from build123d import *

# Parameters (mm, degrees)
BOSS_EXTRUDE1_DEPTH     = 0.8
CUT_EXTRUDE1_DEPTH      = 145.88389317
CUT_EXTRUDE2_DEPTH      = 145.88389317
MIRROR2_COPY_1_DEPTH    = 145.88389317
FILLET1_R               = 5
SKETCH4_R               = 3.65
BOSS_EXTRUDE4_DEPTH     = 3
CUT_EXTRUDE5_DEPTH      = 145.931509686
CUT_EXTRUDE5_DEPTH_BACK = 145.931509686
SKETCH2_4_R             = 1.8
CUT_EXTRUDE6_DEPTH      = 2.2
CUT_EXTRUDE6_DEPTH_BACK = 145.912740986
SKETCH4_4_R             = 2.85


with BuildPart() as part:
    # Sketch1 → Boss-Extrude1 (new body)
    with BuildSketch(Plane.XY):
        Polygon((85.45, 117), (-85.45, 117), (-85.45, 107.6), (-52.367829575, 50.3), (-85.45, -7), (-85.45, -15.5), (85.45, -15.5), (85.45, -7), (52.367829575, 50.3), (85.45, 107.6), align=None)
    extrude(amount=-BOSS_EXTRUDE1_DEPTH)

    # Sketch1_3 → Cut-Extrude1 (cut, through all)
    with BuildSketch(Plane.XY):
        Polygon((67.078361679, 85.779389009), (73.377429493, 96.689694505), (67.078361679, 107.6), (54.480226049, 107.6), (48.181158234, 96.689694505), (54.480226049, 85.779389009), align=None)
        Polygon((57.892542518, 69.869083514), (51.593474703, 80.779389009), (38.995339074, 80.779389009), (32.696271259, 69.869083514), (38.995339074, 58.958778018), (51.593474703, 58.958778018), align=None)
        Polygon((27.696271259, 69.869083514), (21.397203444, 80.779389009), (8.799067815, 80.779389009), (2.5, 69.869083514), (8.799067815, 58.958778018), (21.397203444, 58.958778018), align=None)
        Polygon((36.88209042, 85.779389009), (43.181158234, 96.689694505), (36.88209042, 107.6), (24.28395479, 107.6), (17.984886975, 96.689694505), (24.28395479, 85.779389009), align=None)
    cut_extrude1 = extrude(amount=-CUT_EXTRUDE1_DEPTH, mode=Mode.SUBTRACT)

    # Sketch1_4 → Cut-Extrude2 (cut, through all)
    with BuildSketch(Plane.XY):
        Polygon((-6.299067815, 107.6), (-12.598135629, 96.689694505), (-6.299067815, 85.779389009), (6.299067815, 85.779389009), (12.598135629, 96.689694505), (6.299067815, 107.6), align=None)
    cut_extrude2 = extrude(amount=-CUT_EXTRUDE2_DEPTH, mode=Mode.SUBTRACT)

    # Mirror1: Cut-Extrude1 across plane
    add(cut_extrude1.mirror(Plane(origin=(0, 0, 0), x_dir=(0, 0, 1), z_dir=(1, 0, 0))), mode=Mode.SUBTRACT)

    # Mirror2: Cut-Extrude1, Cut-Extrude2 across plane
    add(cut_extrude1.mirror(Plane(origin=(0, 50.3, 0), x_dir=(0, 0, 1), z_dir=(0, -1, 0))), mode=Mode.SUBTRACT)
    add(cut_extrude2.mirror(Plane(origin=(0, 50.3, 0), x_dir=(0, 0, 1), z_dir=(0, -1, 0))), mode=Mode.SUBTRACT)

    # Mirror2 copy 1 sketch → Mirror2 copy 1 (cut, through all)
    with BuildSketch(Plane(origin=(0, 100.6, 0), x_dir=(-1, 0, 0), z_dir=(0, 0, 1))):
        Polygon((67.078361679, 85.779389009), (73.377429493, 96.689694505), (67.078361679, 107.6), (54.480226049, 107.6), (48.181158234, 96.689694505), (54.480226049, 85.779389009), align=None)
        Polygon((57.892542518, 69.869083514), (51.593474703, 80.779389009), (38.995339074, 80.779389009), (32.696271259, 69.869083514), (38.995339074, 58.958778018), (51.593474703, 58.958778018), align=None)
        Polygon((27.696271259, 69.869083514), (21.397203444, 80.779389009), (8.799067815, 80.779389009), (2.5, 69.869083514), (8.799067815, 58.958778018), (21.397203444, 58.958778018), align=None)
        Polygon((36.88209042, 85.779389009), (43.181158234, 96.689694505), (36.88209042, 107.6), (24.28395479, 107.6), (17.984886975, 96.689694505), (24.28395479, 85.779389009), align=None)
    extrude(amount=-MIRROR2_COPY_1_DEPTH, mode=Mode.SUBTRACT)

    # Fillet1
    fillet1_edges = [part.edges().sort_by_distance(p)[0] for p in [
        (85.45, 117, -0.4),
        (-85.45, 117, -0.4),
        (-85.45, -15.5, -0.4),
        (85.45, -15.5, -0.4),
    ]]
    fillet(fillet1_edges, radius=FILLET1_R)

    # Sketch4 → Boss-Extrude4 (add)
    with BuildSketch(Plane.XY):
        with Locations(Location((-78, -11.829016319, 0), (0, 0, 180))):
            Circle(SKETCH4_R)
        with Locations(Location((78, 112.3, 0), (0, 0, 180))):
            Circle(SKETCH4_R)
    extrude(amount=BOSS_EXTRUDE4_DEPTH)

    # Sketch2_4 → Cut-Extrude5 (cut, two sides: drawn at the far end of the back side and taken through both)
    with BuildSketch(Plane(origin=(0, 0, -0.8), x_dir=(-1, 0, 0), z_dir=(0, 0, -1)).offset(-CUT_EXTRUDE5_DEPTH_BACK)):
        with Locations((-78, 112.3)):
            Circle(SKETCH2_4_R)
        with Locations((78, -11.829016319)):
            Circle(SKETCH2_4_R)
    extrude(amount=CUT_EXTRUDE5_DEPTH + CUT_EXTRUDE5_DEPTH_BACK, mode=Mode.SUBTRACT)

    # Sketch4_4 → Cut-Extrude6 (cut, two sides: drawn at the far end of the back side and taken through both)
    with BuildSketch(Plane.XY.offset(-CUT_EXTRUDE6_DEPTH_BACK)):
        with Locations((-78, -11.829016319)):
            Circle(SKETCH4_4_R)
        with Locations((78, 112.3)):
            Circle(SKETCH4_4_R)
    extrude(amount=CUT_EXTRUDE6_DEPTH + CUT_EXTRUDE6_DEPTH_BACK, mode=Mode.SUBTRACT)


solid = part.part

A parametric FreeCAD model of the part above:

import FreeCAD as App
import Part
import Sketcher
Q = App.Units.Quantity


def edges_at(feature, points):
    """Names of the edges that pass closest to the given points."""
    edges = feature.Shape.Edges
    near = lambda p: min(range(len(edges)), key=lambda i: edges[i].distToShape(Part.Vertex(*p))[0])
    return sorted({f"Edge{near(p) + 1}" for p in points})


def add_polygon(sketch, points):
    """Adds a closed chain of lines whose ends are joined by coincident constraints."""
    first, n = sketch.GeometryCount, len(points)
    for a, b in zip(points, points[1:] + points[:1]):
        sketch.addGeometry(Part.LineSegment(App.Vector(*a, 0), App.Vector(*b, 0)), False)
    for i in range(n):
        sketch.addConstraint(Sketcher.Constraint("Coincident", first + i, 2, first + (i + 1) % n, 1))

doc = App.newDocument("Part")
body = doc.addObject("PartDesign::Body", "Body")

# Sketch on XY plane
sketch1 = body.newObject("Sketcher::SketchObject", "Sketch")
sketch1.AttachmentSupport = (doc.getObject("XY_Plane"), [""])
sketch1.MapMode = "FlatFace"
add_polygon(sketch1, [(85, 117), (-85, 117), (-85, 108), (-52, 50), (-85, -7), (-85, -16), (85, -16), (85, -7), (52, 50), (85, 108)])  # lines 0-9
sketch1.addConstraint([
    Sketcher.Constraint("Horizontal", 0),
    Sketcher.Constraint("Vertical", 1),
    Sketcher.Constraint("Vertical", 4),
    Sketcher.Constraint("Horizontal", 5),
    Sketcher.Constraint("Vertical", 6),
    Sketcher.Constraint("Vertical", 9),
    Sketcher.Constraint("Symmetric", 3, 2, 6, 2, -2),
    Sketcher.Constraint("Symmetric", 2, 2, 7, 2, -2),
    Sketcher.Constraint("Symmetric", 1, 2, 8, 2, -2),
    Sketcher.Constraint("Parallel", 2, 7),
    Sketcher.Constraint("Vertical", 1, 2, 3, 2),
    Sketcher.Constraint("Angle", 2, Q("-60 deg")),
    Sketcher.Constraint("DistanceX", 0, 2, 0, 1, 170.9),
    Sketcher.Constraint("DistanceY", 1, 2, 1, 1, 9.4),
    Sketcher.Constraint("DistanceY", 4, 2, 4, 1, 8.5),
    Sketcher.Constraint("DistanceY", -1, 1, 0, 2, 117.0),
    Sketcher.Constraint("DistanceY", 3, 2, -1, 1, 7.0),
])
pad1 = body.newObject("PartDesign::Pad", "Pad")
pad1.Profile = sketch1
pad1.Length = 0.8
pad1.Reversed = True

# Sketch on XY plane
sketch2 = body.newObject("Sketcher::SketchObject", "Sketch001")
sketch2.AttachmentSupport = (doc.getObject("XY_Plane"), [""])
sketch2.MapMode = "FlatFace"
add_polygon(sketch2, [(67, 86), (73, 97), (67, 108), (54, 108), (48, 97), (54, 86)])  # lines 0-5
add_polygon(sketch2, [(58, 70), (52, 81), (39, 81), (33, 70), (39, 59), (52, 59)])  # lines 6-11
add_polygon(sketch2, [(28, 70), (21, 81), (9, 81), (2, 70), (9, 59), (21, 59)])  # lines 12-17
add_polygon(sketch2, [(37, 86), (43, 97), (37, 108), (24, 108), (18, 97), (24, 86)])  # lines 18-23
sketch2.addConstraint([
    Sketcher.Constraint("Horizontal", 2),
    Sketcher.Constraint("Horizontal", 5),
    Sketcher.Constraint("Horizontal", 7),
    Sketcher.Constraint("Horizontal", 10),
    Sketcher.Constraint("Horizontal", 13),
    Sketcher.Constraint("Horizontal", 16),
    Sketcher.Constraint("Horizontal", 20),
    Sketcher.Constraint("Horizontal", 23),
    Sketcher.Constraint("Parallel", 0, 3),
    Sketcher.Constraint("Parallel", 1, 4),
    Sketcher.Constraint("Parallel", 4, 6),
    Sketcher.Constraint("Parallel", 3, 8),
    Sketcher.Constraint("Parallel", 6, 9),
    Sketcher.Constraint("Parallel", 8, 11),
    Sketcher.Constraint("Parallel", 9, 12),
    Sketcher.Constraint("Parallel", 11, 14),
    Sketcher.Constraint("Parallel", 12, 15),
    Sketcher.Constraint("Parallel", 14, 17),
    Sketcher.Constraint("Parallel", 17, 18),
    Sketcher.Constraint("Parallel", 15, 19),
    Sketcher.Constraint("Parallel", 18, 21),
    Sketcher.Constraint("Parallel", 19, 22),
    Sketcher.Constraint("Horizontal", 0, 2, 3, 2),
    Sketcher.Constraint("Horizontal", 8, 2, 11, 2),
    Sketcher.Constraint("Horizontal", 7, 2, 12, 2),
    Sketcher.Constraint("Horizontal", 11, 2, 14, 2),
    Sketcher.Constraint("Horizontal", 10, 2, 15, 2),
    Sketcher.Constraint("Horizontal", 14, 2, 17, 2),
    Sketcher.Constraint("Horizontal", 3, 2, 18, 2),
    Sketcher.Constraint("Horizontal", 2, 2, 19, 2),
    Sketcher.Constraint("Horizontal", 18, 2, 21, 2),
    Sketcher.Constraint("Horizontal", 5, 2, 22, 2),
    Sketcher.Constraint("Vertical", 2, 2, 4, 2),
    Sketcher.Constraint("Vertical", 1, 2, 5, 2),
    Sketcher.Constraint("Vertical", 7, 2, 9, 2),
    Sketcher.Constraint("Equal", 5, 7),
    Sketcher.Constraint("Equal", 10, 13),
    Sketcher.Constraint("Equal", 16, 20),
    Sketcher.Constraint("Equal", 4, 6),
    Sketcher.Constraint("Angle", 0, Q("60 deg")),
    Sketcher.Constraint("DistanceY", 6, 2, 4, 2, 5.0),
    Sketcher.Constraint("DistanceX", 17, 2, 8, 2, 5.0),
    Sketcher.Constraint("DistanceX", 18, 2, 3, 2, 5.0),
    Sketcher.Constraint("DistanceY", -1, 1, 1, 2, 107.6),
    Sketcher.Constraint("DistanceX", -1, 1, 14, 2, 2.5),
    Sketcher.Constraint("DistanceX", 2, 2, 2, 1, 12.598136),
    Sketcher.Constraint("DistanceX", -1, 1, 0, 2, 73.377429),
    Sketcher.Constraint("DistanceX", -1, 1, 1, 2, 67.078362),
])
pocket1 = body.newObject("PartDesign::Pocket", "Pocket")
pocket1.Profile = sketch2
pocket1.Type = "ThroughAll"

# Sketch on XY plane
sketch3 = body.newObject("Sketcher::SketchObject", "Sketch002")
sketch3.AttachmentSupport = (doc.getObject("XY_Plane"), [""])
sketch3.MapMode = "FlatFace"
add_polygon(sketch3, [(-6, 108), (-13, 97), (-6, 86), (6, 86), (13, 97), (6, 108)])  # lines 0-5
sketch3.addConstraint([
    Sketcher.Constraint("Horizontal", 2),
    Sketcher.Constraint("Horizontal", 5),
    Sketcher.Constraint("Symmetric", 0, 2, 3, 2, -2),
    Sketcher.Constraint("Parallel", 0, 3),
    Sketcher.Constraint("Parallel", 1, 4),
    Sketcher.Constraint("Vertical", 2, 2, 4, 2),
    Sketcher.Constraint("Vertical", 1, 2, 5, 2),
    Sketcher.Constraint("Angle", 0, Q("-120 deg")),
    Sketcher.Constraint("DistanceY", -1, 1, 4, 2, 107.6),
    Sketcher.Constraint("DistanceX", 2, 1, 2, 2, 12.598136),
    Sketcher.Constraint("DistanceY", -1, 1, 1, 2, 85.779389),
])
pocket2 = body.newObject("PartDesign::Pocket", "Pocket001")
pocket2.Profile = sketch3
pocket2.Type = "ThroughAll"
doc.recompute()

mirrored = body.newObject("PartDesign::Mirrored", "Mirrored")
mirrored.Originals = [pocket1]
mirrored.MirrorPlane = (doc.getObject("YZ_Plane"), [""])
body.Tip = mirrored
doc.recompute()

datumplane = body.newObject("PartDesign::Plane", "DatumPlane")
datumplane.AttachmentSupport = (doc.getObject("XZ_Plane"), [""])
datumplane.MapMode = "FlatFace"
datumplane.AttachmentOffset = App.Placement(App.Vector(0, 0, -50.3), App.Rotation())
mirrored2 = body.newObject("PartDesign::Mirrored", "Mirrored001")
mirrored2.Originals = [pocket1, pocket2]
mirrored2.MirrorPlane = (datumplane, [""])
body.Tip = mirrored2

# Sketch on XY plane
sketch4 = body.newObject("Sketcher::SketchObject", "Sketch003")
sketch4.AttachmentSupport = (doc.getObject("XY_Plane"), [""])
sketch4.MapMode = "FlatFace"
add_polygon(sketch4, [(-67, 15), (-73, 4), (-67, -7), (-54, -7), (-48, 4), (-54, 15)])  # lines 0-5
add_polygon(sketch4, [(-58, 31), (-52, 20), (-39, 20), (-33, 31), (-39, 42), (-52, 42)])  # lines 6-11
add_polygon(sketch4, [(-28, 31), (-21, 20), (-9, 20), (-2, 31), (-9, 42), (-21, 42)])  # lines 12-17
add_polygon(sketch4, [(-37, 15), (-43, 4), (-37, -7), (-24, -7), (-18, 4), (-24, 15)])  # lines 18-23
sketch4.addConstraint([
    Sketcher.Constraint("Horizontal", 2),
    Sketcher.Constraint("Horizontal", 5),
    Sketcher.Constraint("Horizontal", 7),
    Sketcher.Constraint("Horizontal", 10),
    Sketcher.Constraint("Horizontal", 13),
    Sketcher.Constraint("Horizontal", 16),
    Sketcher.Constraint("Horizontal", 20),
    Sketcher.Constraint("Horizontal", 23),
    Sketcher.Constraint("Parallel", 0, 3),
    Sketcher.Constraint("Parallel", 1, 4),
    Sketcher.Constraint("Parallel", 4, 6),
    Sketcher.Constraint("Parallel", 3, 8),
    Sketcher.Constraint("Parallel", 6, 9),
    Sketcher.Constraint("Parallel", 8, 11),
    Sketcher.Constraint("Parallel", 9, 12),
    Sketcher.Constraint("Parallel", 11, 14),
    Sketcher.Constraint("Parallel", 12, 15),
    Sketcher.Constraint("Parallel", 14, 17),
    Sketcher.Constraint("Parallel", 17, 18),
    Sketcher.Constraint("Parallel", 15, 19),
    Sketcher.Constraint("Parallel", 18, 21),
    Sketcher.Constraint("Parallel", 19, 22),
    Sketcher.Constraint("Horizontal", 0, 2, 3, 2),
    Sketcher.Constraint("Horizontal", 8, 2, 11, 2),
    Sketcher.Constraint("Horizontal", 7, 2, 12, 2),
    Sketcher.Constraint("Horizontal", 11, 2, 14, 2),
    Sketcher.Constraint("Horizontal", 10, 2, 15, 2),
    Sketcher.Constraint("Horizontal", 14, 2, 17, 2),
    Sketcher.Constraint("Horizontal", 3, 2, 18, 2),
    Sketcher.Constraint("Horizontal", 2, 2, 19, 2),
    Sketcher.Constraint("Horizontal", 18, 2, 21, 2),
    Sketcher.Constraint("Horizontal", 5, 2, 22, 2),
    Sketcher.Constraint("Vertical", 2, 2, 4, 2),
    Sketcher.Constraint("Vertical", 1, 2, 5, 2),
    Sketcher.Constraint("Vertical", 7, 2, 9, 2),
    Sketcher.Constraint("Equal", 5, 7),
    Sketcher.Constraint("Equal", 10, 13),
    Sketcher.Constraint("Equal", 16, 20),
    Sketcher.Constraint("Equal", 4, 6),
    Sketcher.Constraint("Angle", 0, Q("-120 deg")),
    Sketcher.Constraint("DistanceY", 1, 2, -1, 1, 7.0),
    Sketcher.Constraint("DistanceY", 4, 2, 6, 2, 5.0),
    Sketcher.Constraint("DistanceX", 8, 2, 17, 2, 5.0),
    Sketcher.Constraint("DistanceX", 3, 2, 18, 2, 5.0),
    Sketcher.Constraint("DistanceX", 14, 2, -1, 1, 2.5),
    Sketcher.Constraint("DistanceX", 2, 1, 2, 2, 12.598136),
    Sketcher.Constraint("DistanceX", 0, 2, -1, 1, 73.377429),
    Sketcher.Constraint("DistanceX", 1, 2, -1, 1, 67.078362),
])
pocket3 = body.newObject("PartDesign::Pocket", "Pocket002")
pocket3.Profile = sketch4
pocket3.Type = "ThroughAll"
doc.recompute()

fillet = body.newObject("PartDesign::Fillet", "Fillet")
fillet.Base = (pocket3, edges_at(pocket3, [
    (85.45, 117, -0.4),
    (-85.45, 117, -0.4),
    (-85.45, -15.5, -0.4),
    (85.45, -15.5, -0.4),
]))
fillet.Radius = 5

# Sketch on XY plane
sketch5 = body.newObject("Sketcher::SketchObject", "Sketch004")
sketch5.AttachmentSupport = (doc.getObject("XY_Plane"), [""])
sketch5.MapMode = "FlatFace"
sketch5.addGeometry([
    Part.Circle(App.Vector(-78, -11.8, 0), App.Vector(0, 0, 1), 3.6),
    Part.Circle(App.Vector(78, 112.3, 0), App.Vector(0, 0, 1), 3.6),
], False)
sketch5.addConstraint([
    Sketcher.Constraint("Equal", 0, 1),
    Sketcher.Constraint("Diameter", 0, 7.3),
    Sketcher.Constraint("DistanceX", 0, 3, -1, 1, 78.0),
    Sketcher.Constraint("DistanceX", -1, 1, 1, 3, 78.0),
    Sketcher.Constraint("DistanceY", -1, 1, 1, 3, 112.3),
    Sketcher.Constraint("DistanceY", 0, 3, -1, 1, 11.829016),
])
pad2 = body.newObject("PartDesign::Pad", "Pad001")
pad2.Profile = sketch5
pad2.Length = 3

# Sketch on XY plane
sketch6 = body.newObject("Sketcher::SketchObject", "Sketch005")
sketch6.AttachmentSupport = (doc.getObject("XY_Plane"), [""])
sketch6.MapMode = "FlatFace"
sketch6.AttachmentOffset = App.Placement(App.Vector(0, 0, -0.8), App.Rotation())
sketch6.addGeometry([
    Part.Circle(App.Vector(78, 112.3, 0), App.Vector(0, 0, 1), 1.8),
    Part.Circle(App.Vector(-78, -11.8, 0), App.Vector(0, 0, 1), 1.8),
], False)
sketch6.addConstraint([
    Sketcher.Constraint("Equal", 0, 1),
    Sketcher.Constraint("Diameter", 0, 3.6),
    Sketcher.Constraint("DistanceX", -1, 1, 0, 3, 78.0),
    Sketcher.Constraint("DistanceX", 1, 3, -1, 1, 78.0),
    Sketcher.Constraint("DistanceY", -1, 1, 0, 3, 112.3),
    Sketcher.Constraint("DistanceY", 1, 3, -1, 1, 11.829016),
])
pocket4 = body.newObject("PartDesign::Pocket", "Pocket003")
pocket4.Profile = sketch6
pocket4.Type = "ThroughAll"
pocket4.Midplane = True

# Sketch on XY plane
sketch7 = body.newObject("Sketcher::SketchObject", "Sketch006")
sketch7.AttachmentSupport = (doc.getObject("XY_Plane"), [""])
sketch7.MapMode = "FlatFace"
sketch7.addGeometry([
    Part.Circle(App.Vector(-78, -11.8, 0), App.Vector(0, 0, 1), 2.9),
    Part.Circle(App.Vector(78, 112.3, 0), App.Vector(0, 0, 1), 2.9),
], False)
sketch7.addConstraint([
    Sketcher.Constraint("Equal", 0, 1),
    Sketcher.Constraint("Diameter", 0, 5.7),
    Sketcher.Constraint("DistanceX", 0, 3, -1, 1, 78.0),
    Sketcher.Constraint("DistanceX", -1, 1, 1, 3, 78.0),
    Sketcher.Constraint("DistanceY", -1, 1, 1, 3, 112.3),
    Sketcher.Constraint("DistanceY", 0, 3, -1, 1, 11.829016),
])
pocket5 = body.newObject("PartDesign::Pocket", "Pocket004")
pocket5.Profile = sketch7
pocket5.Type = "TwoLengths"
pocket5.Length = 2.2
pocket5.Length2 = 145.912741
pocket5.Reversed = True

doc.recompute()
